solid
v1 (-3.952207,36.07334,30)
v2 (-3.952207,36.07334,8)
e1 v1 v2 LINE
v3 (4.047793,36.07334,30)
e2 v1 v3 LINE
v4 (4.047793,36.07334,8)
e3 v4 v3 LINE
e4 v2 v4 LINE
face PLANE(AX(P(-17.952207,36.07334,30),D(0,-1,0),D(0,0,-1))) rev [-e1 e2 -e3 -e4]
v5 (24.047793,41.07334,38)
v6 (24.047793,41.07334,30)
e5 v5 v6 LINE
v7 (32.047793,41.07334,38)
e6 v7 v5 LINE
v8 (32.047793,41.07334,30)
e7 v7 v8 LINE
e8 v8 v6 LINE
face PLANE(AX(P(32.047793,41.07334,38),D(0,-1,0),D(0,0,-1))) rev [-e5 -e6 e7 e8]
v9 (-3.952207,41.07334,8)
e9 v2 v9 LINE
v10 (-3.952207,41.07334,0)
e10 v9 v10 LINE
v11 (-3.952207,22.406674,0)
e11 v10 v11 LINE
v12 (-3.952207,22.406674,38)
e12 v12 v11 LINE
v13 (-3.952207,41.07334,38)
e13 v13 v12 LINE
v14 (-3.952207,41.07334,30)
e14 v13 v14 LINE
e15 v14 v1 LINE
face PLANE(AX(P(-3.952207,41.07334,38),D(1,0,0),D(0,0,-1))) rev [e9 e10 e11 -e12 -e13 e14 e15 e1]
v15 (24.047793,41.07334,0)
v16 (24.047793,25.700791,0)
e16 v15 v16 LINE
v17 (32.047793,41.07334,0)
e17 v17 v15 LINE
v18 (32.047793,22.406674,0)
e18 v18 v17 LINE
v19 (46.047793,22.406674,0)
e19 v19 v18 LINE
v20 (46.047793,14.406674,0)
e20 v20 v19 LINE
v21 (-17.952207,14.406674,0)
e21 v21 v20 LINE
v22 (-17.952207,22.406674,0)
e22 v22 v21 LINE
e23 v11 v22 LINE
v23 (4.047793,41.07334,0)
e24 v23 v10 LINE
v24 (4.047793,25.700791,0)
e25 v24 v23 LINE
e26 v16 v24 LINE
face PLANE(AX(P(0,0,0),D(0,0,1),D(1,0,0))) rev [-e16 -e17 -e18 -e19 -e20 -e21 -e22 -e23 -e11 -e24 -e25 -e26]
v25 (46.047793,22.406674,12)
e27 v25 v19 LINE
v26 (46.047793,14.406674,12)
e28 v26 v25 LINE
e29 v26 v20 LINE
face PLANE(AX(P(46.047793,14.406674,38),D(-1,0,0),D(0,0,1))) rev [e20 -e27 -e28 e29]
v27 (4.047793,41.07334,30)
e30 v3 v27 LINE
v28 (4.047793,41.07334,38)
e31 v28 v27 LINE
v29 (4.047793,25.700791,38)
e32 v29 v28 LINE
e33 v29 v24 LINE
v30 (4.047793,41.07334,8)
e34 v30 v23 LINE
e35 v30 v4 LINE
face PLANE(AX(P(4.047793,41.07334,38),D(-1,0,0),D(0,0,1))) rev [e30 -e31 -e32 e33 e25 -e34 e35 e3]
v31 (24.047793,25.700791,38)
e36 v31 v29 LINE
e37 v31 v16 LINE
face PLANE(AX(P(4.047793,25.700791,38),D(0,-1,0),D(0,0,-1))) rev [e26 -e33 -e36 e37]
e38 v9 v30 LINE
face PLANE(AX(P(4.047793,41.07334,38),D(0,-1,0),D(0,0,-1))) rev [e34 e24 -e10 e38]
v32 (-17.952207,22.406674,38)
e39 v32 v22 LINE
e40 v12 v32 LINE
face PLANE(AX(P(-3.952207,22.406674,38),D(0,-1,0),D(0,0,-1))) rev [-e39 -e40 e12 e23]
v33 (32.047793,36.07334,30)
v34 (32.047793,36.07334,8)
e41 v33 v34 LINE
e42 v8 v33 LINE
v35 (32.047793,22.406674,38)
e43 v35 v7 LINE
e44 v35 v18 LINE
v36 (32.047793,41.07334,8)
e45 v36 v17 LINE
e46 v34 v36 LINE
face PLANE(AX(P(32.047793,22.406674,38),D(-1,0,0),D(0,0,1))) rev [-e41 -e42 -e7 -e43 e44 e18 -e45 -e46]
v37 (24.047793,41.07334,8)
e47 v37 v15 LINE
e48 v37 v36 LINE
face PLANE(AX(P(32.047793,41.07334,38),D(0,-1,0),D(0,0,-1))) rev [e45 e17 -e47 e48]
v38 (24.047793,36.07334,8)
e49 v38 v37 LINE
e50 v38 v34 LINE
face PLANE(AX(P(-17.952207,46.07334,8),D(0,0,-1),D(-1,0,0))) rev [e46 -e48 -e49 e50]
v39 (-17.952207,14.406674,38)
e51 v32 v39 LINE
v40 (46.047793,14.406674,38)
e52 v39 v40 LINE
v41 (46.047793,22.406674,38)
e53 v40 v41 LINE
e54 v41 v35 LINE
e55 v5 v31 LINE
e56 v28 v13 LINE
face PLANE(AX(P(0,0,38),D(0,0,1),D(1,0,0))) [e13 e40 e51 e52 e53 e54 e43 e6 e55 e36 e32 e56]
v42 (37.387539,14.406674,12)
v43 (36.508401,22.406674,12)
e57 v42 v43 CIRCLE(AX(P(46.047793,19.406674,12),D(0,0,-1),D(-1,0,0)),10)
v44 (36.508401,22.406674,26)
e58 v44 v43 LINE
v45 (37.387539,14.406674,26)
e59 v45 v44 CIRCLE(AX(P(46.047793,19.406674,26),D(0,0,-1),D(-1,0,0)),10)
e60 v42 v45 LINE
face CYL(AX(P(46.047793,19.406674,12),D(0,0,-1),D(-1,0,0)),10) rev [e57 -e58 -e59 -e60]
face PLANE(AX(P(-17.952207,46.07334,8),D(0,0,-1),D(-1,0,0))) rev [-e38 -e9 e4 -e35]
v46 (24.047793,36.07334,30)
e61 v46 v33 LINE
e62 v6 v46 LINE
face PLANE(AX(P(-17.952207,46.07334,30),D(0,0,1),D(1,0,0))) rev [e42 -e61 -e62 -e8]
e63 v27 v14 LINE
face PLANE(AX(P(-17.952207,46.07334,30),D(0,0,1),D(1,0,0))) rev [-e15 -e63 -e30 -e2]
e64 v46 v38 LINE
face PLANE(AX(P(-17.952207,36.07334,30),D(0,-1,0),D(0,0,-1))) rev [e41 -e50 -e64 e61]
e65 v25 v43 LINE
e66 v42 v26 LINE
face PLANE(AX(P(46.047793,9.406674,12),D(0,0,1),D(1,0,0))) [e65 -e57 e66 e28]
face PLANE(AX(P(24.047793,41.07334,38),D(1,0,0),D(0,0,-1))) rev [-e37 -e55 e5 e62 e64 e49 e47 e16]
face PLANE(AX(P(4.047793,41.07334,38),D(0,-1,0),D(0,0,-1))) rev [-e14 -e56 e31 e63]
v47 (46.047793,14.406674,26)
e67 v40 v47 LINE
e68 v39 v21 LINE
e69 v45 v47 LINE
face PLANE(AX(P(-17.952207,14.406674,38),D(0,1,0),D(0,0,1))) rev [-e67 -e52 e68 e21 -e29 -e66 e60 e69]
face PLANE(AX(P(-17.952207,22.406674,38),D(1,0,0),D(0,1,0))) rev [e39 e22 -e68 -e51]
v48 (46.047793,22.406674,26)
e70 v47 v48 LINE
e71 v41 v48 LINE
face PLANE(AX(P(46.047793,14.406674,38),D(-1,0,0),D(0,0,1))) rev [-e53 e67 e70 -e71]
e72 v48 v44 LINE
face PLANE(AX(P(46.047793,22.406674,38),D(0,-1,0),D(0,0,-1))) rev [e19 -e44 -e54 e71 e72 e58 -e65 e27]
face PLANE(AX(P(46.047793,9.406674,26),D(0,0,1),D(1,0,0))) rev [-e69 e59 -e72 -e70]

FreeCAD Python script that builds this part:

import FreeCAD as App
import Part
import Sketcher

V = App.Vector


def add_polygon(sketch, points):
    """Adds a closed chain of lines whose ends are joined by coincident constraints."""
    first, n = sketch.GeometryCount, len(points)
    for a, b in zip(points, points[1:] + points[:1]):
        sketch.addGeometry(Part.LineSegment(App.Vector(*a, 0), App.Vector(*b, 0)), False)
    for i in range(n):
        sketch.addConstraint(Sketcher.Constraint("Coincident", first + i, 2, first + (i + 1) % n, 1))

doc = App.newDocument("Part")
body = doc.addObject("PartDesign::Body", "Body")

# Sketch on XY plane
sketch1 = body.newObject("Sketcher::SketchObject", "Sketch")
sketch1.AttachmentSupport = (doc.getObject("XY_Plane"), [""])
sketch1.MapMode = "FlatFace"
add_polygon(sketch1, [(4.047793, 41.07334), (-3.952207, 41.07334), (-3.952207, 22.406674), (-17.952207, 22.406674), (-17.952207, 14.406674), (46.047793, 14.406674), (46.047793, 22.406674), (32.047793, 22.406674), (32.047793, 41.07334), (24.047793, 41.07334), (24.047793, 25.700791), (4.047793, 25.700791)])  # lines 0-11
sketch1.addConstraint(Sketcher.Constraint("Horizontal", 0))
sketch1.addConstraint(Sketcher.Constraint("Vertical", 1))
sketch1.addConstraint(Sketcher.Constraint("Horizontal", 2))
sketch1.addConstraint(Sketcher.Constraint("Vertical", 3))
sketch1.addConstraint(Sketcher.Constraint("Horizontal", 4))
sketch1.addConstraint(Sketcher.Constraint("Vertical", 5))
sketch1.addConstraint(Sketcher.Constraint("Horizontal", 6))
sketch1.addConstraint(Sketcher.Constraint("Vertical", 7))
sketch1.addConstraint(Sketcher.Constraint("Horizontal", 8))
sketch1.addConstraint(Sketcher.Constraint("Vertical", 9))
sketch1.addConstraint(Sketcher.Constraint("Horizontal", 10))
sketch1.addConstraint(Sketcher.Constraint("Vertical", 11))
sketch1.addConstraint(Sketcher.Constraint("Horizontal", 2, 2, 5, 2))
sketch1.addConstraint(Sketcher.Constraint("Horizontal", 0, 2, 7, 2))
sketch1.addConstraint(Sketcher.Constraint("Equal", 2, 6))
sketch1.addConstraint(Sketcher.Constraint("Equal", 0, 8))
sketch1.addConstraint(Sketcher.Constraint("Equal", 8, 3))
sketch1.addConstraint(Sketcher.Constraint("DistanceX", 0, 2, 0, 1, 8.0))
sketch1.addConstraint(Sketcher.Constraint("DistanceX", 2, 2, 2, 1, 14.0))
sketch1.addConstraint(Sketcher.Constraint("DistanceX", 4, 1, 4, 2, 64.0))
sketch1.addConstraint(Sketcher.Constraint("DistanceY", 9, 2, 9, 1, 15.372549))
sketch1.addConstraint(Sketcher.Constraint("DistanceY", 1, 2, 1, 1, 18.666667))
sketch1.addConstraint(Sketcher.Constraint("DistanceY", -1, 1, 0, 2, 41.07334))
sketch1.addConstraint(Sketcher.Constraint("DistanceX", 0, 2, -1, 1, 3.952207))
pad1 = body.newObject("PartDesign::Pad", "Pad")
pad1.Profile = sketch1
pad1.Length = 38

# Sketch on YZ plane
sketch2 = body.newObject("Sketcher::SketchObject", "Sketch001")
sketch2.AttachmentSupport = (doc.getObject("YZ_Plane"), [""])
sketch2.MapMode = "FlatFace"
sketch2.AttachmentOffset = App.Placement(V(0, 0, 32.047793), App.Rotation())
add_polygon(sketch2, [(46.07334, 30), (36.07334, 30), (36.07334, 8), (46.07334, 8)])  # lines 0-3
sketch2.addConstraint(Sketcher.Constraint("Horizontal", 0))
sketch2.addConstraint(Sketcher.Constraint("Vertical", 1))
sketch2.addConstraint(Sketcher.Constraint("Horizontal", 2))
sketch2.addConstraint(Sketcher.Constraint("Vertical", 3))
sketch2.addConstraint(Sketcher.Constraint("DistanceX", 0, 2, 0, 1, 10.0))
sketch2.addConstraint(Sketcher.Constraint("DistanceY", 1, 2, 1, 1, 22.0))
sketch2.addConstraint(Sketcher.Constraint("DistanceY", -1, 1, 0, 2, 30.0))
sketch2.addConstraint(Sketcher.Constraint("DistanceX", -1, 1, 0, 2, 36.07334))
pocket1 = body.newObject("PartDesign::Pocket", "Pocket")
pocket1.Profile = sketch2
pocket1.Type = "ThroughAll"

# Sketch on YZ plane
sketch3 = body.newObject("Sketcher::SketchObject", "Sketch002")
sketch3.AttachmentSupport = (doc.getObject("YZ_Plane"), [""])
sketch3.MapMode = "FlatFace"
sketch3.AttachmentOffset = App.Placement(V(0, 0, 46.047793), App.Rotation())
add_polygon(sketch3, [(19.406674, 26), (9.406674, 26), (9.406674, 12), (19.406674, 12)])  # lines 0-3
sketch3.addGeometry(Part.LineSegment(V(19.406674, 12, 0), V(19.406674, 26, 0)), True)  # axis
sketch3.addConstraint(Sketcher.Constraint("Horizontal", 0))
sketch3.addConstraint(Sketcher.Constraint("Vertical", 1))
sketch3.addConstraint(Sketcher.Constraint("Horizontal", 2))
sketch3.addConstraint(Sketcher.Constraint("Vertical", 3))
sketch3.addConstraint(Sketcher.Constraint("Vertical", 4))
sketch3.addConstraint(Sketcher.Constraint("Coincident", 4, 1, 2, 2))
sketch3.addConstraint(Sketcher.Constraint("Horizontal", 0, 2, 4, 2))
sketch3.addConstraint(Sketcher.Constraint("DistanceX", 0, 2, 0, 1, 10.0))
sketch3.addConstraint(Sketcher.Constraint("DistanceY", 1, 2, 1, 1, 14.0))
sketch3.addConstraint(Sketcher.Constraint("DistanceY", -1, 1, 0, 2, 26.0))
sketch3.addConstraint(Sketcher.Constraint("DistanceX", -1, 1, 0, 2, 9.406674))
groove = body.newObject("PartDesign::Groove", "Groove")
groove.Profile = sketch3
groove.ReferenceAxis = (sketch3, ["Axis0"])
groove.Angle = 360

doc.recompute()
